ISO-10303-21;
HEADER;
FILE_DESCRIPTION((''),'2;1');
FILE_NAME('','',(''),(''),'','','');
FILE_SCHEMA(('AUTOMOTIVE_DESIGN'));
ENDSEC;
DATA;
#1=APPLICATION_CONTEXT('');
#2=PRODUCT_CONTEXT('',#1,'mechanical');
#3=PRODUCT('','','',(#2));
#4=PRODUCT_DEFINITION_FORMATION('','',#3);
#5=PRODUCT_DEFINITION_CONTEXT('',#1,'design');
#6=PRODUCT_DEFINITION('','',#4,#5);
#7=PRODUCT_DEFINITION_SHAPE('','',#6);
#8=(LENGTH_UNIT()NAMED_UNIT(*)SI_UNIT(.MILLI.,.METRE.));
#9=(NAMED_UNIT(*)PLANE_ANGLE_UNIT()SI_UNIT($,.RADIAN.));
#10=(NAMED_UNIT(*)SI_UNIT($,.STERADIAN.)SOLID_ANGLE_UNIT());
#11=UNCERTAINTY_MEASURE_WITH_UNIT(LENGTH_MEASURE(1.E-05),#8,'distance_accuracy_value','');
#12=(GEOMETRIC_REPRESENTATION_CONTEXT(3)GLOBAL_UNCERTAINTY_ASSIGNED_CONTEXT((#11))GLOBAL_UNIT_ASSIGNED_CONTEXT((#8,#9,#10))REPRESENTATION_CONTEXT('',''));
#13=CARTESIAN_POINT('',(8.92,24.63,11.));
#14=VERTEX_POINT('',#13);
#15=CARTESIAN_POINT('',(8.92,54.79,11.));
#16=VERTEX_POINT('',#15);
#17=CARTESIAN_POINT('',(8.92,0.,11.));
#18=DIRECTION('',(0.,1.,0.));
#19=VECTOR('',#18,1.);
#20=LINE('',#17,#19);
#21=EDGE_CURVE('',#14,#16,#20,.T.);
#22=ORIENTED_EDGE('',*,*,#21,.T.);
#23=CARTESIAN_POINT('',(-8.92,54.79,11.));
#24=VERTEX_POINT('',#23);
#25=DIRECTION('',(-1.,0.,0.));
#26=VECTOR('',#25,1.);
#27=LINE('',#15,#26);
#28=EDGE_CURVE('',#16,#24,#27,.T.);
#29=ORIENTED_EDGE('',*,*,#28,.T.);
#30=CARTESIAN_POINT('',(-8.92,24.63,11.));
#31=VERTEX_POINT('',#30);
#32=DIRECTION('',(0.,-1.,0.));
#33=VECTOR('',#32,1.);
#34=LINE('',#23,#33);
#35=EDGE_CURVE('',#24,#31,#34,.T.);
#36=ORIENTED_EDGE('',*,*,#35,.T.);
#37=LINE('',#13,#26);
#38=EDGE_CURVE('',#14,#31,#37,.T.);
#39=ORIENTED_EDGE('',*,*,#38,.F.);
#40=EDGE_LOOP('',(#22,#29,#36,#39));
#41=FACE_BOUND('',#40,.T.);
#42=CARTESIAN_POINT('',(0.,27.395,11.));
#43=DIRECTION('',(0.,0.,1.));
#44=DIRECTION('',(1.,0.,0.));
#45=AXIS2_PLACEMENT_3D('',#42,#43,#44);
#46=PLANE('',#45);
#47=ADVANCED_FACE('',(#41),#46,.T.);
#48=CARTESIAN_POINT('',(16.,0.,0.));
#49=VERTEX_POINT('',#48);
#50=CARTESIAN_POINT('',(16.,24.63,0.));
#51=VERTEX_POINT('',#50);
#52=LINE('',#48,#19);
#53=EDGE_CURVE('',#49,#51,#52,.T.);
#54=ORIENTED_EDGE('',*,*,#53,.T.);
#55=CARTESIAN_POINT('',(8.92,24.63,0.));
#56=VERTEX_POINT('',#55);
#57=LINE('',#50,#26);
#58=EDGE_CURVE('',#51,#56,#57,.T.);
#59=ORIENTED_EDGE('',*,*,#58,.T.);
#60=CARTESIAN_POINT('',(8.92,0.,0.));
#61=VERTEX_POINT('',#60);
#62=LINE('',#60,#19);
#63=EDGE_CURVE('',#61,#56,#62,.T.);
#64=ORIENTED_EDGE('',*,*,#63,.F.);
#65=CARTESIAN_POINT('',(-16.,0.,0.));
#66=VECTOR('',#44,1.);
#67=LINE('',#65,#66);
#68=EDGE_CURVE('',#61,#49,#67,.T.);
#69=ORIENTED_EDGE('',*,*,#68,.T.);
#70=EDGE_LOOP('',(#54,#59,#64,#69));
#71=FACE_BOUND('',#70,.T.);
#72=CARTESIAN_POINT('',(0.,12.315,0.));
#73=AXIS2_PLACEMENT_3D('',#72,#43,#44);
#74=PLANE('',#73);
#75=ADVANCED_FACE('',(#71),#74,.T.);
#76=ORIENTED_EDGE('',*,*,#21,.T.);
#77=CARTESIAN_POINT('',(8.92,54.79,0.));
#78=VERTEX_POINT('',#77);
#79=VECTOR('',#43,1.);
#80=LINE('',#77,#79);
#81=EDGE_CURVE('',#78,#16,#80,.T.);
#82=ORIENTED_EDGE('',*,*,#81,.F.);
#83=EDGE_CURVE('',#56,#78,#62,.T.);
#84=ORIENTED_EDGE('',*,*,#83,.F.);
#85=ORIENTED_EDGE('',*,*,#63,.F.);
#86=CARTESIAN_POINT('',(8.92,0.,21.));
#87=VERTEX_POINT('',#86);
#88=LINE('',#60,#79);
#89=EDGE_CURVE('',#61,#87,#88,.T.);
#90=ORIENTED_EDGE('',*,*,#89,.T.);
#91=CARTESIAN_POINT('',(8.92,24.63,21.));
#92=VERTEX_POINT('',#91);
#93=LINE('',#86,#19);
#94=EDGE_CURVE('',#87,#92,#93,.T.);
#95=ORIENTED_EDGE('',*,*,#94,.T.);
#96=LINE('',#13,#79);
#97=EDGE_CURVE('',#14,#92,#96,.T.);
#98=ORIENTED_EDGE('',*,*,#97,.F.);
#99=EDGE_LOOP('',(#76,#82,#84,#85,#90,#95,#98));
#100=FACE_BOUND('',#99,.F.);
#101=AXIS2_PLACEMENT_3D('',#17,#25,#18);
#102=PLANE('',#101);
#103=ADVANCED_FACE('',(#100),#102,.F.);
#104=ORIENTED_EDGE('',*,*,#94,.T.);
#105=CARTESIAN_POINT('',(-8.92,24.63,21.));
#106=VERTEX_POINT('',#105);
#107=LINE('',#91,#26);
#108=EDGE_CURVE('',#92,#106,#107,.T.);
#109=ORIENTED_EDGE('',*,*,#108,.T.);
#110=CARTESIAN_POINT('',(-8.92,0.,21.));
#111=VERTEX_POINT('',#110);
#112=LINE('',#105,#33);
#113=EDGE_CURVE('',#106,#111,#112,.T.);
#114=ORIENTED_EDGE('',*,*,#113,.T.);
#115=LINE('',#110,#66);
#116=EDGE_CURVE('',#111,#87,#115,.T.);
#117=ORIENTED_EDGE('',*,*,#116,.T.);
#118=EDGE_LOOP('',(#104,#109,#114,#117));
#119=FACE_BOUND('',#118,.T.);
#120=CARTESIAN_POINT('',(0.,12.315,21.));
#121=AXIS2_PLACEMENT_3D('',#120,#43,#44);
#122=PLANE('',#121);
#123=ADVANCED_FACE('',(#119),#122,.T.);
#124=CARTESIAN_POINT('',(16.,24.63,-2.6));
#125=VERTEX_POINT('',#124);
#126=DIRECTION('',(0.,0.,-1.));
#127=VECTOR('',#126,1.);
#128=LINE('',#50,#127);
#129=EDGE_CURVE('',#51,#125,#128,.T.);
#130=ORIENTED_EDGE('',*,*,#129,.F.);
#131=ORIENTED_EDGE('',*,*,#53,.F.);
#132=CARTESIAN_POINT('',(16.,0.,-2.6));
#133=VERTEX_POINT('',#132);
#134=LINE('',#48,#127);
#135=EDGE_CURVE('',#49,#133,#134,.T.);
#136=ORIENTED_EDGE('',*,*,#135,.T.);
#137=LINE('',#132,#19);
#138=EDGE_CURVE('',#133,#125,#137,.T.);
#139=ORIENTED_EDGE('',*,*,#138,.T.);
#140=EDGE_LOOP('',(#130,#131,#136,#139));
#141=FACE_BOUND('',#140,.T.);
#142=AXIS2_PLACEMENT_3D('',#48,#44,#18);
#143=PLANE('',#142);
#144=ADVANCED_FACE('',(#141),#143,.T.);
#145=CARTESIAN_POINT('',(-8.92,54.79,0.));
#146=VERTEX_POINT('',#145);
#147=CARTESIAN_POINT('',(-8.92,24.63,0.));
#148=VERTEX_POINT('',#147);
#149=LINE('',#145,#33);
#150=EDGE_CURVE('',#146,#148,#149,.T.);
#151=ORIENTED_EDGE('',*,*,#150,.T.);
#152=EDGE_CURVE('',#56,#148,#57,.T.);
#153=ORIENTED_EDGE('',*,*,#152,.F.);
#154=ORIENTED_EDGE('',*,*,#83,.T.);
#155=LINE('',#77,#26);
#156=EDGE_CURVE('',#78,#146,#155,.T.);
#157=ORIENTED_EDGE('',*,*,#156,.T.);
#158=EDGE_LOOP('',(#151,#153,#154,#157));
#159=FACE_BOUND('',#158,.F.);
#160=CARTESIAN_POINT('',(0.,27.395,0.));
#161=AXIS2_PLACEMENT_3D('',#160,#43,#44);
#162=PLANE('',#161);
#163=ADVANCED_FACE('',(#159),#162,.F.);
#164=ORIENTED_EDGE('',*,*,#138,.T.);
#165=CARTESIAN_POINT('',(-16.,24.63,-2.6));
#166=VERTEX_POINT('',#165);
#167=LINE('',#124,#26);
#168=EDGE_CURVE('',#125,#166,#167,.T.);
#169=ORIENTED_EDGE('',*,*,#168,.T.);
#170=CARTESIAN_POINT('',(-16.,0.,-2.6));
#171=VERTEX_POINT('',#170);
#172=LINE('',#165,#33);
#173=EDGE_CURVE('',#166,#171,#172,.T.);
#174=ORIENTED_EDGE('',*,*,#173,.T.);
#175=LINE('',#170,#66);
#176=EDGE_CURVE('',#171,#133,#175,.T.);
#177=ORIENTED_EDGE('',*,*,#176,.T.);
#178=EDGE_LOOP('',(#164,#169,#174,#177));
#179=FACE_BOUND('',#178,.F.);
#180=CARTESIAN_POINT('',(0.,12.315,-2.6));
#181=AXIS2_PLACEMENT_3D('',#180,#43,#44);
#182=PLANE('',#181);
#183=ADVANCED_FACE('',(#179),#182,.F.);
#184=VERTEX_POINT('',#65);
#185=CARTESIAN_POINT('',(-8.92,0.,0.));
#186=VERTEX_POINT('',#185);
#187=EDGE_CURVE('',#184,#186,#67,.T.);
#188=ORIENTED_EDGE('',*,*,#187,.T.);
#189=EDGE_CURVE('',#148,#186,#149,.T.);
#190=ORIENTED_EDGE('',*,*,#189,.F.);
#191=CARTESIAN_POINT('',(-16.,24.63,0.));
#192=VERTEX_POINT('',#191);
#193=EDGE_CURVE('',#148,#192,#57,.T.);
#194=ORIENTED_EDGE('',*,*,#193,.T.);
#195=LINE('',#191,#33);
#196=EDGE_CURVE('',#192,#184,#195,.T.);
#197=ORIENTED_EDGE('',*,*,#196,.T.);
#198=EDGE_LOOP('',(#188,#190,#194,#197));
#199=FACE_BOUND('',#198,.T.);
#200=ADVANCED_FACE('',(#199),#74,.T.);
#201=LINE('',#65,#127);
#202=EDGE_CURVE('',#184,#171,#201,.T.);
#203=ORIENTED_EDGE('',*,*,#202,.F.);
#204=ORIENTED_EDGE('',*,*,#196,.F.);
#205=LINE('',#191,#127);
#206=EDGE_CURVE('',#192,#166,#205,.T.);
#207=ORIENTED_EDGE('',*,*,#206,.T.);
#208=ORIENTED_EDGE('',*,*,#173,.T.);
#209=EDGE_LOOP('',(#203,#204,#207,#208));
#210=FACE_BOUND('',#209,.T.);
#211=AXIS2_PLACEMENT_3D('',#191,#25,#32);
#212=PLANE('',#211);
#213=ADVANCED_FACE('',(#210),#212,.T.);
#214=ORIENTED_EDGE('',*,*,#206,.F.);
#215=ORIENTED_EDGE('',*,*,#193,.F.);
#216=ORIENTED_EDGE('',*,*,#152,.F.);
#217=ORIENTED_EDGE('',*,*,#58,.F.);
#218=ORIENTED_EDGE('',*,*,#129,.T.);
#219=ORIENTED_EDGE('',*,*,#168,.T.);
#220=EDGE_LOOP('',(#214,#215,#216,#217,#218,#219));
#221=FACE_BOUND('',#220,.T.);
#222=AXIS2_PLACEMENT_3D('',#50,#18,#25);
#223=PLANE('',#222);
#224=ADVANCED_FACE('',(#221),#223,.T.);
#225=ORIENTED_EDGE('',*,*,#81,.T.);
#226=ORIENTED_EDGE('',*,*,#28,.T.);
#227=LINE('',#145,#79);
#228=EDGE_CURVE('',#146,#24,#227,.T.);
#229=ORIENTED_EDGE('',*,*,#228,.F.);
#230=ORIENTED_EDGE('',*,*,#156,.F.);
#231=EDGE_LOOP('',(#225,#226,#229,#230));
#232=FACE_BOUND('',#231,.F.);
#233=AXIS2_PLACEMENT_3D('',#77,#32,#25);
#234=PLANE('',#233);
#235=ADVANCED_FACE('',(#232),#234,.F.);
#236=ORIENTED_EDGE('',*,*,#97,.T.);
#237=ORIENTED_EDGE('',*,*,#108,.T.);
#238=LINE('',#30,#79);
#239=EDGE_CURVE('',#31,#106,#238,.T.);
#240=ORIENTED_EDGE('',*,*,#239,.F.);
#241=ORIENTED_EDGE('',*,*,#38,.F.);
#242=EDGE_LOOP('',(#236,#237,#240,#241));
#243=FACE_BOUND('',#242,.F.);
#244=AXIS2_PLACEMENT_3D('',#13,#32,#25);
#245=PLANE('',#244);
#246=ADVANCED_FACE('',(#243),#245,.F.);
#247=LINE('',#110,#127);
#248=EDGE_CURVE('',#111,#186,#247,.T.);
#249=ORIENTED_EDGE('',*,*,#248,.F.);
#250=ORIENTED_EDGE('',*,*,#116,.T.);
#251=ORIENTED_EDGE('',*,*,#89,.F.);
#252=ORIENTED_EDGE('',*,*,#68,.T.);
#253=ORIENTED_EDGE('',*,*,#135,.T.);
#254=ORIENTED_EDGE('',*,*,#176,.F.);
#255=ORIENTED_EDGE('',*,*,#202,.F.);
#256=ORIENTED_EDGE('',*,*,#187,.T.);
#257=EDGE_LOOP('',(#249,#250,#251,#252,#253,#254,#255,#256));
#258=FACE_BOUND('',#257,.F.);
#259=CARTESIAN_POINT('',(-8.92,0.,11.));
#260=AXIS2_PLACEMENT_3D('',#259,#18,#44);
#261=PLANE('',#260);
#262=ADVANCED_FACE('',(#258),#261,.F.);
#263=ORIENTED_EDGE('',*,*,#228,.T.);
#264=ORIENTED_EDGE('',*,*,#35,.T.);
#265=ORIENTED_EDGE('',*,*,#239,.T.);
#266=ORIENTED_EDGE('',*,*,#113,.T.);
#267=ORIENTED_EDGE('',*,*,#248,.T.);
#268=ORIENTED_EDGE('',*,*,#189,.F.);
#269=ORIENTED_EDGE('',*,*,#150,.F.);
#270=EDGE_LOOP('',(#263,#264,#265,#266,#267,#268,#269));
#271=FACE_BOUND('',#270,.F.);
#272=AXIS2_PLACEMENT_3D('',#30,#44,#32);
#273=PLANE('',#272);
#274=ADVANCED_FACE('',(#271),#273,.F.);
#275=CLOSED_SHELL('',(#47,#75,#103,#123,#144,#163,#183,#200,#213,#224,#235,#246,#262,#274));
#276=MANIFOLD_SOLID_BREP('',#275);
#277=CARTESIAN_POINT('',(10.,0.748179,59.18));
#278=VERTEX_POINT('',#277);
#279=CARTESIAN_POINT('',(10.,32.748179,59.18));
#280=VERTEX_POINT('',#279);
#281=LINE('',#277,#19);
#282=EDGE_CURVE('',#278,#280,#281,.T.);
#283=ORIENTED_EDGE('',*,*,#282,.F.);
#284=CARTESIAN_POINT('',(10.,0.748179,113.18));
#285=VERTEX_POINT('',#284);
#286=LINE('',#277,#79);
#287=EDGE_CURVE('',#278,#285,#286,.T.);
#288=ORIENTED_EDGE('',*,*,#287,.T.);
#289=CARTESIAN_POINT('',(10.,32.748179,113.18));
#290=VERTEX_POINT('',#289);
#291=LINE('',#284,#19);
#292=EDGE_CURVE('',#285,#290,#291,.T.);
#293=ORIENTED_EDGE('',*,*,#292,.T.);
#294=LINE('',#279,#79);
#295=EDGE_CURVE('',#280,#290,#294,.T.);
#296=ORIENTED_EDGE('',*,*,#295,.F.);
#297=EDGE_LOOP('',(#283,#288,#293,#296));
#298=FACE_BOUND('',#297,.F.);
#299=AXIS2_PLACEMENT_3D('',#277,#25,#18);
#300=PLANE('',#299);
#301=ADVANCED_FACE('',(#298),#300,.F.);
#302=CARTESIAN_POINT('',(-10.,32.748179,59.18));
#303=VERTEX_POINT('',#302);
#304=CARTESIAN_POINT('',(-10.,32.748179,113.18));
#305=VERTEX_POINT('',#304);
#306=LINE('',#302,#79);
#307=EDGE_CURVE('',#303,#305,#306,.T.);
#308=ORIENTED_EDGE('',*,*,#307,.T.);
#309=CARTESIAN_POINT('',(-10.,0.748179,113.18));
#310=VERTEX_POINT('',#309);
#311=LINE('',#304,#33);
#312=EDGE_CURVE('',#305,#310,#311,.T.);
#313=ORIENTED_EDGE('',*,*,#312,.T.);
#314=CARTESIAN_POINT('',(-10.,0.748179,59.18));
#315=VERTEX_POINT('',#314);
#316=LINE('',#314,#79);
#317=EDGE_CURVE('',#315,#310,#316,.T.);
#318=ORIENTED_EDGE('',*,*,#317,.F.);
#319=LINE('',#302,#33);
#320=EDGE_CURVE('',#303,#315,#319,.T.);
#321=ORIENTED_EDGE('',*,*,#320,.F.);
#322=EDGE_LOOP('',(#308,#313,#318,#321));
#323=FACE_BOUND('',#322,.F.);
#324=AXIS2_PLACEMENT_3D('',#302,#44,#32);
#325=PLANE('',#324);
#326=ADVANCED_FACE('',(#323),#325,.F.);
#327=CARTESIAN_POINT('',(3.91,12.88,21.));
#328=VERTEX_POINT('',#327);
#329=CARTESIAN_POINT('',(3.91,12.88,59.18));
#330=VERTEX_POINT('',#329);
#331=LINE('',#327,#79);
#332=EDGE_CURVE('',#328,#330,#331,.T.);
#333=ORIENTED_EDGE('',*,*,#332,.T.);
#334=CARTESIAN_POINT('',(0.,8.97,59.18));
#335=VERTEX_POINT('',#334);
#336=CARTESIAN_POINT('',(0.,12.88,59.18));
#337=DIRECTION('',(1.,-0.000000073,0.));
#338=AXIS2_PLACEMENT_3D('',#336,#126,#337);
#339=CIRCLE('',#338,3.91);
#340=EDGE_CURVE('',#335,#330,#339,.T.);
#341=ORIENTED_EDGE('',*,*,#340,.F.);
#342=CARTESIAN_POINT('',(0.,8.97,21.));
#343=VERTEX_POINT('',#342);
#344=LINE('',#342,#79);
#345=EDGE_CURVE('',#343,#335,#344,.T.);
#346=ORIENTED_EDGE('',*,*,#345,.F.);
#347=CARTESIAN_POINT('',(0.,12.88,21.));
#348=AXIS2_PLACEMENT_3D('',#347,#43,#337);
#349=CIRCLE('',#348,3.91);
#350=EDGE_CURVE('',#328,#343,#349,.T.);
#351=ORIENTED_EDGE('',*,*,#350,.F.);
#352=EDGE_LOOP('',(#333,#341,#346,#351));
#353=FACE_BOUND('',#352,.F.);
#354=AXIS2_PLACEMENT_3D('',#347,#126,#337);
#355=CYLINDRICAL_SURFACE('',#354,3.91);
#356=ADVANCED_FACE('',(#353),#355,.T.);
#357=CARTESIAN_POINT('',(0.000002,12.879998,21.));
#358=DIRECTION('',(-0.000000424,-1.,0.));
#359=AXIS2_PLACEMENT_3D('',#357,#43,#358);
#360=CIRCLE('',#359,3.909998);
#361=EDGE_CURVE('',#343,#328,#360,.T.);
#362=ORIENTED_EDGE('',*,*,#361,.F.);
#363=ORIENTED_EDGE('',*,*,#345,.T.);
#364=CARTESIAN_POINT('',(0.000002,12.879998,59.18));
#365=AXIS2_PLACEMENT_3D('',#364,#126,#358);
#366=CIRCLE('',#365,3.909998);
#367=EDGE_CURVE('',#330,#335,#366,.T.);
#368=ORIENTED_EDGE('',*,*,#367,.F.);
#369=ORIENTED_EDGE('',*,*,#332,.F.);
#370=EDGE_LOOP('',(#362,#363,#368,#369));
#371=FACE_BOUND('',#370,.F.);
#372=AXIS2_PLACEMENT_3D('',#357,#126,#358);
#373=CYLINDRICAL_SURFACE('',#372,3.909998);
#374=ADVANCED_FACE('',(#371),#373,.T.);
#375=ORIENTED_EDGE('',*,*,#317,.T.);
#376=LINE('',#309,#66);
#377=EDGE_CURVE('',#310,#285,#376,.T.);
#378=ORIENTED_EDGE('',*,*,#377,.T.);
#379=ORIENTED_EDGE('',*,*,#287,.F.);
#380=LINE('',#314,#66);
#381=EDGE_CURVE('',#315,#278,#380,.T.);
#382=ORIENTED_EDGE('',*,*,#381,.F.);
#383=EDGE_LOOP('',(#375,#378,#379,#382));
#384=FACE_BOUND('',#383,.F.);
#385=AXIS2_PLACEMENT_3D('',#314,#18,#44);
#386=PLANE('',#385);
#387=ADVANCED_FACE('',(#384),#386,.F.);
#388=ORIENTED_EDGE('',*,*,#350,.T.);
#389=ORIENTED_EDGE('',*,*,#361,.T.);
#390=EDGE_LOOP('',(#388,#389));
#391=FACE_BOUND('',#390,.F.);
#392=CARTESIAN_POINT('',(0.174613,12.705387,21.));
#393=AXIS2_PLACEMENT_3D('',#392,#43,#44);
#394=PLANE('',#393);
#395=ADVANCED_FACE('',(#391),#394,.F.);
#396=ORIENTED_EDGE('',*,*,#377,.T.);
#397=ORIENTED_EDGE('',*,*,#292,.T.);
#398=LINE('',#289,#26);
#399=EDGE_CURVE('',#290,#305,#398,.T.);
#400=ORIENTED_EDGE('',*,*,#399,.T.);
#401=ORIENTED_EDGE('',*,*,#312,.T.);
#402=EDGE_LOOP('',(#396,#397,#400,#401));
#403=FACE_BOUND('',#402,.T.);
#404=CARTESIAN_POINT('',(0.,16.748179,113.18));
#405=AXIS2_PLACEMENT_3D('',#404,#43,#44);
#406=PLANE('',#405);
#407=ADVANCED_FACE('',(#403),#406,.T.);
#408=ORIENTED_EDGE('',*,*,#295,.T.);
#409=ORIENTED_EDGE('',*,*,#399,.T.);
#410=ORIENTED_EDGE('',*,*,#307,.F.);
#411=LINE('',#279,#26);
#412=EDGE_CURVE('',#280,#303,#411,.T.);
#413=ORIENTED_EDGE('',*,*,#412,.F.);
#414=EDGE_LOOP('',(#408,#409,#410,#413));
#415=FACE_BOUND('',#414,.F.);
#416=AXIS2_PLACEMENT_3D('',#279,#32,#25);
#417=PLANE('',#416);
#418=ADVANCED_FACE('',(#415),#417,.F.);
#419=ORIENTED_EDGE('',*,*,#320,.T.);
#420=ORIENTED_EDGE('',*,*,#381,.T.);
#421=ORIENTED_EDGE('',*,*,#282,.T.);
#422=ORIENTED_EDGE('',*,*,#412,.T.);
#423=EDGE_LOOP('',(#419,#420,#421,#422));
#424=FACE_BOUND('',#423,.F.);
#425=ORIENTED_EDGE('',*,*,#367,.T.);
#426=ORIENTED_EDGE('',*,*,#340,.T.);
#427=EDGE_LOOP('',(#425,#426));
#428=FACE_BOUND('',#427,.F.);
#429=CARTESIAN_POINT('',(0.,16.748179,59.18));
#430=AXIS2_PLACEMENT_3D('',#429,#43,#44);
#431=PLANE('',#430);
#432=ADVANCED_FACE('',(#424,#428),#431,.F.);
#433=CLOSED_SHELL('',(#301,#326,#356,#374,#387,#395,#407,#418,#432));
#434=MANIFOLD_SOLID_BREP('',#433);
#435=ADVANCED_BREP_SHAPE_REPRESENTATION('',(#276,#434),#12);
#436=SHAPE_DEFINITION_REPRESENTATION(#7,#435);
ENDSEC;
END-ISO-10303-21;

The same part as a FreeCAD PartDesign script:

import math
import FreeCAD as App
import Part
import Sketcher
Q = App.Units.Quantity


def add_polygon(sketch, points):
    """Adds a closed chain of lines whose ends are joined by coincident constraints."""
    first, n = sketch.GeometryCount, len(points)
    for a, b in zip(points, points[1:] + points[:1]):
        sketch.addGeometry(Part.LineSegment(App.Vector(*a, 0), App.Vector(*b, 0)), False)
    for i in range(n):
        sketch.addConstraint(Sketcher.Constraint("Coincident", first + i, 2, first + (i + 1) % n, 1))

doc = App.newDocument("Part")
body = doc.addObject("PartDesign::Body", "Body")

# Sketch on XY plane
sketch1 = doc.addObject("Sketcher::SketchObject", "Sketch")
body.addObject(sketch1)
sketch1.AttachmentSupport = (doc.XY_Plane, [""])
sketch1.MapMode = "FlatFace"
add_polygon(sketch1, [(-16, 0), (16, 0), (16, 25), (-16, 25)])  # lines 0-3
sketch1.addConstraint([
    Sketcher.Constraint("Horizontal", 0),
    Sketcher.Constraint("Vertical", 1),
    Sketcher.Constraint("Horizontal", 2),
    Sketcher.Constraint("Vertical", 3),
    Sketcher.Constraint("Symmetric", 0, 2, 3, 2, -1, 1),
    Sketcher.Constraint("DistanceX", 0, 1, 0, 2, Q("32 mm")),
    Sketcher.Constraint("DistanceY", 1, 1, 1, 2, Q("24.63 mm")),
])
pad1 = doc.addObject("PartDesign::Pad", "Pad")
body.addObject(pad1)
pad1.Profile = sketch1
pad1.Length = 2.6
pad1.Reversed = True

# Sketch on XY plane
sketch2 = doc.addObject("Sketcher::SketchObject", "Sketch001")
body.addObject(sketch2)
sketch2.AttachmentSupport = (doc.XY_Plane, [""])
sketch2.MapMode = "FlatFace"
add_polygon(sketch2, [(-9, 0), (9, 0), (9, 55), (-9, 55)])  # lines 0-3
sketch2.addConstraint([
    Sketcher.Constraint("Horizontal", 0),
    Sketcher.Constraint("Vertical", 1),
    Sketcher.Constraint("Horizontal", 2),
    Sketcher.Constraint("Vertical", 3),
    Sketcher.Constraint("Symmetric", 0, 2, 3, 2, -1, 1),
    Sketcher.Constraint("DistanceX", 0, 1, 0, 2, Q("17.84 mm")),
    Sketcher.Constraint("DistanceY", 1, 1, 1, 2, Q("54.79 mm")),
])
pad2 = doc.addObject("PartDesign::Pad", "Pad001")
body.addObject(pad2)
pad2.Profile = sketch2
pad2.Length = 11

# Sketch on XY plane
sketch3 = doc.addObject("Sketcher::SketchObject", "Sketch002")
body.addObject(sketch3)
sketch3.AttachmentSupport = (doc.XY_Plane, [""])
sketch3.MapMode = "FlatFace"
sketch3.AttachmentOffset = App.Placement(App.Vector(0, 0, 11), App.Rotation())
add_polygon(sketch3, [(-9, 0), (9, 0), (9, 25), (-9, 25)])  # lines 0-3
sketch3.addConstraint([
    Sketcher.Constraint("Horizontal", 0),
    Sketcher.Constraint("Vertical", 1),
    Sketcher.Constraint("Horizontal", 2),
    Sketcher.Constraint("Vertical", 3),
    Sketcher.Constraint("Symmetric", 0, 2, 3, 2, -1, 1),
    Sketcher.Constraint("DistanceX", 0, 1, 0, 2, Q("17.84 mm")),
    Sketcher.Constraint("DistanceY", 1, 1, 1, 2, Q("24.63 mm")),
])
pad3 = doc.addObject("PartDesign::Pad", "Pad002")
body.addObject(pad3)
pad3.Profile = sketch3
pad3.Length = 10
body2 = doc.addObject("PartDesign::Body", "Body001")

# Sketch on XY plane
sketch4 = doc.addObject("Sketcher::SketchObject", "Sketch003")
body2.addObject(sketch4)
sketch4.AttachmentSupport = (doc.getObject("XY_Plane001"), [""])
sketch4.MapMode = "FlatFace"
sketch4.AttachmentOffset = App.Placement(App.Vector(0, 0, 21), App.Rotation())
sketch4.addGeometry([
    Part.ArcOfCircle(Part.Circle(App.Vector(0, 12.9, 0), App.Vector(0, 0, 1), 3.9), math.radians(-90), math.radians(0)),
    Part.ArcOfCircle(Part.Circle(App.Vector(0, 12.9, 0), App.Vector(0, 0, 1), 3.9), math.radians(0), math.radians(270)),
], False)
sketch4.addConstraint([
    Sketcher.Constraint("Tangent", 0, 1, 1, 2),
    Sketcher.Constraint("Coincident", 1, 1, 0, 2),
    Sketcher.Constraint("PointOnObject", 0, 3, -2),
    Sketcher.Constraint("PointOnObject", 0, 1, -2),
    Sketcher.Constraint("Horizontal", 0, 3, 1, 1),
    Sketcher.Constraint("Radius", 0, Q("3.909998 mm")),
    Sketcher.Constraint("DistanceY", -1, 1, 0, 3, Q("12.879998 mm")),
])
pad4 = doc.addObject("PartDesign::Pad", "Pad003")
body2.addObject(pad4)
pad4.Profile = sketch4
pad4.Length = 59.18

# Sketch on XY plane
sketch5 = doc.addObject("Sketcher::SketchObject", "Sketch004")
body2.addObject(sketch5)
sketch5.AttachmentSupport = (doc.getObject("XY_Plane001"), [""])
sketch5.MapMode = "FlatFace"
sketch5.AttachmentOffset = App.Placement(App.Vector(0, 0, 59.18), App.Rotation())
add_polygon(sketch5, [(-10, 1), (10, 1), (10, 33), (-10, 33)])  # lines 0-3
sketch5.addConstraint([
    Sketcher.Constraint("Horizontal", 0),
    Sketcher.Constraint("Vertical", 1),
    Sketcher.Constraint("Horizontal", 2),
    Sketcher.Constraint("Vertical", 3),
    Sketcher.Constraint("DistanceX", 0, 1, 0, 2, Q("20 mm")),
    Sketcher.Constraint("DistanceY", 1, 1, 1, 2, Q("32 mm")),
    Sketcher.Constraint("DistanceX", -1, 1, 0, 2, Q("10 mm")),
    Sketcher.Constraint("DistanceY", -1, 1, 0, 2, Q("0.748179 mm")),
])
pad5 = doc.addObject("PartDesign::Pad", "Pad004")
body2.addObject(pad5)
pad5.Profile = sketch5
pad5.Length = 54

doc.recompute()
